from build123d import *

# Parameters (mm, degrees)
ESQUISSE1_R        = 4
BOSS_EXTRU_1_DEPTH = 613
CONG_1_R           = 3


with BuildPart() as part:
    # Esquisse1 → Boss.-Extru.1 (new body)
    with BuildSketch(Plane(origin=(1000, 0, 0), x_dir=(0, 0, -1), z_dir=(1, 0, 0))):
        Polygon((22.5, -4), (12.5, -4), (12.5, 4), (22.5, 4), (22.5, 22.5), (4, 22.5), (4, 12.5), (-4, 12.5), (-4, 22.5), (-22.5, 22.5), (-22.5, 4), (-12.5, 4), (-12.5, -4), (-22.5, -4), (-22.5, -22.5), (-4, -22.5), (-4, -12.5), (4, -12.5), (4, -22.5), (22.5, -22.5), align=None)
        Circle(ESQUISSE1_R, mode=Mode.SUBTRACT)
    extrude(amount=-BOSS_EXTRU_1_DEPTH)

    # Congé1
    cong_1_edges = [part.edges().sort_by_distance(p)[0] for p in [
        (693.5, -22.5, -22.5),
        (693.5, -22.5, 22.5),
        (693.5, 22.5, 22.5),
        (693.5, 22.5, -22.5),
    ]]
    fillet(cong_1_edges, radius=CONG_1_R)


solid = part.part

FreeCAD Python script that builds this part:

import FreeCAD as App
import Part
import Sketcher

V = App.Vector
Q = App.Units.Quantity


def edges_at(feature, points):
    """Names of the edges that pass closest to the given points."""
    edges = feature.Shape.Edges
    near = lambda p: min(range(len(edges)), key=lambda i: edges[i].distToShape(Part.Vertex(*p))[0])
    return sorted({f"Edge{near(p) + 1}" for p in points})

doc = App.newDocument("Part")
params = doc.addObject("Spreadsheet::Sheet", "Params")
for row, (alias, value) in enumerate([
    ("sketch1_diameter", "8 mm"),
    ("sketch1_width", "8 mm"),
    ("sketch1_width2", "10 mm"),
    ("sketch1_width3", "18.5 mm"),
    ("pad1_length", "613 mm"),
    ("fillet_radius", "3 mm"),
], start=1):
    params.set(f"A{row}", alias)
    params.set(f"B{row}", "=" + value)
    params.setAlias(f"B{row}", alias)

body = doc.addObject("PartDesign::Body", "Body")

# Sketch on YZ plane
sketch1 = body.newObject("Sketcher::SketchObject", "Sketch")
sketch1.AttachmentSupport = (doc.getObject("YZ_Plane"), [""])
sketch1.MapMode = "FlatFace"
sketch1.AttachmentOffset = App.Placement(V(0, 0, 1000), App.Rotation())
sketch1.addGeometry([
    Part.LineSegment(V(-4, -22.5, 0), V(-4, -12.5, 0)),  # 0
    Part.LineSegment(V(-4, -12.5, 0), V(4, -12.5, 0)),  # 1
    Part.LineSegment(V(4, -12.5, 0), V(4, -22.5, 0)),  # 2
    Part.LineSegment(V(4, -22.5, 0), V(22.5, -22.5, 0)),  # 3
    Part.LineSegment(V(22.5, -22.5, 0), V(22.5, -4, 0)),  # 4
    Part.LineSegment(V(22.5, -4, 0), V(12.5, -4, 0)),  # 5
    Part.LineSegment(V(12.5, -4, 0), V(12.5, 4, 0)),  # 6
    Part.LineSegment(V(12.5, 4, 0), V(22.5, 4, 0)),  # 7
    Part.LineSegment(V(22.5, 4, 0), V(22.5, 22.5, 0)),  # 8
    Part.LineSegment(V(22.5, 22.5, 0), V(4, 22.5, 0)),  # 9
    Part.LineSegment(V(4, 22.5, 0), V(4, 12.5, 0)),  # 10
    Part.LineSegment(V(4, 12.5, 0), V(-4, 12.5, 0)),  # 11
    Part.LineSegment(V(-4, 12.5, 0), V(-4, 22.5, 0)),  # 12
    Part.LineSegment(V(-4, 22.5, 0), V(-22.5, 22.5, 0)),  # 13
    Part.LineSegment(V(-22.5, 22.5, 0), V(-22.5, 4, 0)),  # 14
    Part.LineSegment(V(-22.5, 4, 0), V(-12.5, 4, 0)),  # 15
    Part.LineSegment(V(-12.5, 4, 0), V(-12.5, -4, 0)),  # 16
    Part.LineSegment(V(-12.5, -4, 0), V(-22.5, -4, 0)),  # 17
    Part.LineSegment(V(-22.5, -4, 0), V(-22.5, -22.5, 0)),  # 18
    Part.LineSegment(V(-22.5, -22.5, 0), V(-4, -22.5, 0)),  # 19
    Part.Circle(V(0, 0, 0), V(0, 0, 1), 4),  # 20
], False)
sketch1.addConstraint([
    Sketcher.Constraint("Coincident", 0, 2, 1, 1),
    Sketcher.Constraint("Coincident", 1, 2, 2, 1),
    Sketcher.Constraint("Coincident", 2, 2, 3, 1),
    Sketcher.Constraint("Coincident", 3, 2, 4, 1),
    Sketcher.Constraint("Coincident", 4, 2, 5, 1),
    Sketcher.Constraint("Coincident", 5, 2, 6, 1),
    Sketcher.Constraint("Coincident", 6, 2, 7, 1),
    Sketcher.Constraint("Coincident", 7, 2, 8, 1),
    Sketcher.Constraint("Coincident", 8, 2, 9, 1),
    Sketcher.Constraint("Coincident", 9, 2, 10, 1),
    Sketcher.Constraint("Coincident", 10, 2, 11, 1),
    Sketcher.Constraint("Coincident", 11, 2, 12, 1),
    Sketcher.Constraint("Coincident", 12, 2, 13, 1),
    Sketcher.Constraint("Coincident", 13, 2, 14, 1),
    Sketcher.Constraint("Coincident", 14, 2, 15, 1),
    Sketcher.Constraint("Coincident", 15, 2, 16, 1),
    Sketcher.Constraint("Coincident", 16, 2, 17, 1),
    Sketcher.Constraint("Coincident", 17, 2, 18, 1),
    Sketcher.Constraint("Coincident", 18, 2, 19, 1),
    Sketcher.Constraint("Coincident", 19, 2, 0, 1),
    Sketcher.Constraint("Vertical", 0),
    Sketcher.Constraint("Horizontal", 1),
    Sketcher.Constraint("Vertical", 2),
    Sketcher.Constraint("Horizontal", 3),
    Sketcher.Constraint("Vertical", 4),
    Sketcher.Constraint("Horizontal", 5),
    Sketcher.Constraint("Vertical", 6),
    Sketcher.Constraint("Horizontal", 7),
    Sketcher.Constraint("Vertical", 8),
    Sketcher.Constraint("Horizontal", 9),
    Sketcher.Constraint("Vertical", 10),
    Sketcher.Constraint("Horizontal", 11),
    Sketcher.Constraint("Vertical", 12),
    Sketcher.Constraint("Horizontal", 13),
    Sketcher.Constraint("Vertical", 14),
    Sketcher.Constraint("Horizontal", 15),
    Sketcher.Constraint("Vertical", 16),
    Sketcher.Constraint("Horizontal", 17),
    Sketcher.Constraint("Vertical", 18),
    Sketcher.Constraint("Horizontal", 19),
    Sketcher.Constraint("Coincident", 20, 3, -1, 1),
    Sketcher.Constraint("Symmetric", 0, 2, 10, 2, -1, 1),
    Sketcher.Constraint("Symmetric", 2, 2, 12, 2, -1, 1),
    Sketcher.Constraint("Symmetric", 4, 2, 14, 2, -1, 1),
    Sketcher.Constraint("Symmetric", 6, 2, 16, 2, -1, 1),
    Sketcher.Constraint("Symmetric", 8, 2, 18, 2, -1, 1),
    Sketcher.Constraint("Symmetric", 9, 2, 12, 2, -2),
    Sketcher.Constraint("Symmetric", 7, 2, 14, 2, -2),
    Sketcher.Constraint("Equal", 17, 0),
    Sketcher.Constraint("Equal", 19, 4),
    Sketcher.Constraint("Equal", 11, 6),
    Sketcher.Constraint("Diameter", 20, Q("8 mm")),
    Sketcher.Constraint("DistanceX", 1, 1, 1, 2, Q("8 mm")),
    Sketcher.Constraint("DistanceX", 5, 2, 5, 1, Q("10 mm")),
    Sketcher.Constraint("DistanceX", 3, 1, 3, 2, Q("18.5 mm")),
])
sketch1.setExpression("Constraints[51]", "Params.sketch1_diameter")
sketch1.setExpression("Constraints[52]", "Params.sketch1_width")
sketch1.setExpression("Constraints[53]", "Params.sketch1_width2")
sketch1.setExpression("Constraints[54]", "Params.sketch1_width3")
pad1 = body.newObject("PartDesign::Pad", "Pad")
pad1.Profile = sketch1
pad1.setExpression("Length", "Params.pad1_length")
pad1.Reversed = True
doc.recompute()

fillet = body.newObject("PartDesign::Fillet", "Fillet")
fillet.Base = (pad1, edges_at(pad1, [
    (693.5, -22.5, -22.5),
    (693.5, -22.5, 22.5),
    (693.5, 22.5, 22.5),
    (693.5, 22.5, -22.5),
]))
fillet.setExpression("Radius", "Params.fillet_radius")

doc.recompute()
